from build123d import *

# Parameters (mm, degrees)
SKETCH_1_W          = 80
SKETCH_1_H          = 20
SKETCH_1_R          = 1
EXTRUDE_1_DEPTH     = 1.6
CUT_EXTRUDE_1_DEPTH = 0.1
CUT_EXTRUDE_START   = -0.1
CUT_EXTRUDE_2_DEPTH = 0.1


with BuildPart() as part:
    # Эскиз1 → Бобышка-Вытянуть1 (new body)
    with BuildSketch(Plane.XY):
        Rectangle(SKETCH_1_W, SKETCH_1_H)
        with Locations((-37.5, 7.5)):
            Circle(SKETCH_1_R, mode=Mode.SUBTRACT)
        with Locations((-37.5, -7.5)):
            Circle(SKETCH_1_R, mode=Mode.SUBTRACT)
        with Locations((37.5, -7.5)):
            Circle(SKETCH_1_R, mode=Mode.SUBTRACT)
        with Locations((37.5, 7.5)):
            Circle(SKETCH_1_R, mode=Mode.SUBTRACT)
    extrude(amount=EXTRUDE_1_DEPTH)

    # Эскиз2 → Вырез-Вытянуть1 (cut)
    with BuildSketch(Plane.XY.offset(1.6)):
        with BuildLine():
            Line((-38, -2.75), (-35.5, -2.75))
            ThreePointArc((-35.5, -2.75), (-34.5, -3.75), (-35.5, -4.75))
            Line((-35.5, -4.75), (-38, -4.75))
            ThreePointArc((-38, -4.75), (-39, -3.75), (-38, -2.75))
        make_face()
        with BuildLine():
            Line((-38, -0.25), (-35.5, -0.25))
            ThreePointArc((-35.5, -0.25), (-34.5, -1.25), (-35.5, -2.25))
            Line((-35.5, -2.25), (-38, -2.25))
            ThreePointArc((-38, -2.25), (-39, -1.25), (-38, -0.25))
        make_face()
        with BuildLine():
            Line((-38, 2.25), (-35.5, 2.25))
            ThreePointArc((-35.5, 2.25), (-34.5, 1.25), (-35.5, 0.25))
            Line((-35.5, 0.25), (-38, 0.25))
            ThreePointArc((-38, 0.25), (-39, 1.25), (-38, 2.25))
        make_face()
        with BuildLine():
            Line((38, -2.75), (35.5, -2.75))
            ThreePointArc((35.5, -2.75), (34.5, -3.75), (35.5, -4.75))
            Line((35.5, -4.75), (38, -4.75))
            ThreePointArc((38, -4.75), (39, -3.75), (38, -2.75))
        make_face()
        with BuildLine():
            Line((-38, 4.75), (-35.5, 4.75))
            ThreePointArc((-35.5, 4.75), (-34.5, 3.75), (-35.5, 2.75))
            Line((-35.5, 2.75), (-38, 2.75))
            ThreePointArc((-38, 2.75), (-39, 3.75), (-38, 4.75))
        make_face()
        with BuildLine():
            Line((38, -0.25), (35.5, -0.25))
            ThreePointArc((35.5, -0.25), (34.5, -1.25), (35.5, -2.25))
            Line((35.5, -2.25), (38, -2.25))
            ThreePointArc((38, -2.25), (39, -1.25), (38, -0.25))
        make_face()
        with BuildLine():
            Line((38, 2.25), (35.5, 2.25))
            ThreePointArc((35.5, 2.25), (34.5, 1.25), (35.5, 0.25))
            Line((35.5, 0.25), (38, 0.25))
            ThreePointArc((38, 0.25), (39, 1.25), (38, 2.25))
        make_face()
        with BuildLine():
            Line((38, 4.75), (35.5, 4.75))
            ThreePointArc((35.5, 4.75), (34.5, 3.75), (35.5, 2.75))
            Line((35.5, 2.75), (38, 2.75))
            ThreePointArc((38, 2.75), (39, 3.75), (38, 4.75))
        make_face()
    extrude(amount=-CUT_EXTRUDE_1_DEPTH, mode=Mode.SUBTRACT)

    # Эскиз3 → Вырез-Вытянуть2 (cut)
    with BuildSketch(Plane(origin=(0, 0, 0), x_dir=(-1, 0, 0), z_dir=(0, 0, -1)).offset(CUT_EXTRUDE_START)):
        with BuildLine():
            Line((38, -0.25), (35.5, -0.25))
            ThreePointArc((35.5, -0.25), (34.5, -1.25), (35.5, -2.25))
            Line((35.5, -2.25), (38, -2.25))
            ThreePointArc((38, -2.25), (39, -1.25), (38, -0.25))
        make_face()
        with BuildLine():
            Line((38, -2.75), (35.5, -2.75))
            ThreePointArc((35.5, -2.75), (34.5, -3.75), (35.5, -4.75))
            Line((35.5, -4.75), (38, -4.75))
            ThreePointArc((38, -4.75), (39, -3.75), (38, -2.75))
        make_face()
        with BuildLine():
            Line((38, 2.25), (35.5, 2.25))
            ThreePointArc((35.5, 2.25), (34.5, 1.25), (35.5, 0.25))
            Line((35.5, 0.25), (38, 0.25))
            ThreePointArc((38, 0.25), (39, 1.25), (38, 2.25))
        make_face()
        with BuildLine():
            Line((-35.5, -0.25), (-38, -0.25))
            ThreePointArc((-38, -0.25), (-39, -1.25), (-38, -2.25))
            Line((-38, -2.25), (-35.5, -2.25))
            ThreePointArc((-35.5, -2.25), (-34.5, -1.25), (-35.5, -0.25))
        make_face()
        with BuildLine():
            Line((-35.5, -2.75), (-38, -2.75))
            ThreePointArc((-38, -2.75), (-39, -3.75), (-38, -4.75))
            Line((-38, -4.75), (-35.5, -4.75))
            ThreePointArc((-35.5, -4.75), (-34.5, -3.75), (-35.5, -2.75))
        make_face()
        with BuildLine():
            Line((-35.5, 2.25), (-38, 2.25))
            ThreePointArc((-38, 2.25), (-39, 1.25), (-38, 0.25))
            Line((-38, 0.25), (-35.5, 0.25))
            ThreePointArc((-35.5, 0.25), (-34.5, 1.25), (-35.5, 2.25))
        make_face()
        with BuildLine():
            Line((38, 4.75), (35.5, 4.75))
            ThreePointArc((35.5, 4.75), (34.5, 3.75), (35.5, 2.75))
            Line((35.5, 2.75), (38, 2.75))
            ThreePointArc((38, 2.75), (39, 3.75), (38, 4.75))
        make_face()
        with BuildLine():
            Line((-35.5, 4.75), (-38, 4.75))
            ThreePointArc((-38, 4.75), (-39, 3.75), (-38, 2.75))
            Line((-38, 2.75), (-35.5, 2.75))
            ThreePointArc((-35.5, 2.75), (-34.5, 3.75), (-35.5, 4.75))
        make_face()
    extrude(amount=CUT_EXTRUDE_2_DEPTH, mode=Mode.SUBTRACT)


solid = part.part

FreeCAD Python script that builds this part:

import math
import FreeCAD as App
import Part
import Sketcher

doc = App.newDocument("Part")
params = doc.addObject("Spreadsheet::Sheet", "Params")
for row, (alias, value) in enumerate([
    ("sketch1_diameter", "2 mm"),
    ("sketch1_width", "80 mm"),
    ("sketch1_height", "20 mm"),
    ("pad1_length", "1.6 mm"),
    ("sketch2_radius", "1 mm"),
    ("sketch2_width", "2.5 mm"),
    ("pocket1_length", "0.1 mm"),
    ("sketch3_radius", "1 mm"),
    ("sketch3_width", "2.5 mm"),
    ("pocket2_length", "0.1 mm"),
], start=1):
    params.set(f"A{row}", alias)
    params.set(f"B{row}", "=" + value)
    params.setAlias(f"B{row}", alias)

body = doc.addObject("PartDesign::Body", "Body")

# Sketch on XY plane
sketch1 = body.newObject("Sketcher::SketchObject", "Sketch")
sketch1.AttachmentSupport = (doc.getObject("XY_Plane"), [""])
sketch1.MapMode = "FlatFace"
sketch1.addGeometry([
    Part.LineSegment(App.Vector(-40, 10, 0), App.Vector(-40, -10, 0)),  # 0
    Part.LineSegment(App.Vector(-40, -10, 0), App.Vector(40, -10, 0)),  # 1
    Part.LineSegment(App.Vector(40, -10, 0), App.Vector(40, 10, 0)),  # 2
    Part.LineSegment(App.Vector(40, 10, 0), App.Vector(-40, 10, 0)),  # 3
    Part.Circle(App.Vector(-37.5, -7.5, 0), App.Vector(0, 0, 1), 1),  # 4
    Part.Circle(App.Vector(37.5, -7.5, 0), App.Vector(0, 0, 1), 1),  # 5
    Part.Circle(App.Vector(-37.5, 7.5, 0), App.Vector(0, 0, 1), 1),  # 6
    Part.Circle(App.Vector(37.5, 7.5, 0), App.Vector(0, 0, 1), 1),  # 7
], False)
sketch1.addConstraint([
    Sketcher.Constraint("Coincident", 0, 2, 1, 1),
    Sketcher.Constraint("Coincident", 1, 2, 2, 1),
    Sketcher.Constraint("Coincident", 2, 2, 3, 1),
    Sketcher.Constraint("Coincident", 3, 2, 0, 1),
    Sketcher.Constraint("Vertical", 0),
    Sketcher.Constraint("Horizontal", 1),
    Sketcher.Constraint("Vertical", 2),
    Sketcher.Constraint("Horizontal", 3),
    Sketcher.Constraint("Equal", 4, 5),
    Sketcher.Constraint("Equal", 5, 6),
    Sketcher.Constraint("Equal", 6, 7),
    Sketcher.Constraint("Symmetric", 5, 3, 6, 3, -1, 1),
    Sketcher.Constraint("Symmetric", 4, 3, 7, 3, -1, 1),
    Sketcher.Constraint("Symmetric", 0, 2, 2, 2, -1, 1),
    Sketcher.Constraint("Symmetric", 4, 3, 5, 3, -2),
    Sketcher.Constraint("Diameter", 4, 2.0),
    Sketcher.Constraint("DistanceX", 1, 1, 1, 2, 80.0),
    Sketcher.Constraint("DistanceY", 0, 2, 0, 1, 20.0),
    Sketcher.Constraint("DistanceX", 4, 3, 5, 3, 75.0),
    Sketcher.Constraint("DistanceY", 4, 3, 6, 3, 15.0),
])
sketch1.setExpression("Constraints[15]", "Params.sketch1_diameter")
sketch1.setExpression("Constraints[16]", "Params.sketch1_width")
sketch1.setExpression("Constraints[17]", "Params.sketch1_height")
pad1 = body.newObject("PartDesign::Pad", "Pad")
pad1.Profile = sketch1
pad1.setExpression("Length", "Params.pad1_length")

# Sketch on XY plane
sketch2 = body.newObject("Sketcher::SketchObject", "Sketch001")
sketch2.AttachmentSupport = (doc.getObject("XY_Plane"), [""])
sketch2.MapMode = "FlatFace"
sketch2.AttachmentOffset = App.Placement(App.Vector(0, 0, 1.6), App.Rotation())
sketch2.addGeometry([
    Part.LineSegment(App.Vector(-35.5, -2.8, 0), App.Vector(-38, -2.8, 0)),  # 0
    Part.ArcOfCircle(Part.Circle(App.Vector(-38, -3.8, 0), App.Vector(0, 0, 1), 1), math.radians(90), math.radians(270)),  # 1
    Part.LineSegment(App.Vector(-38, -4.8, 0), App.Vector(-35.5, -4.8, 0)),  # 2
    Part.ArcOfCircle(Part.Circle(App.Vector(-35.5, -3.8, 0), App.Vector(0, 0, 1), 1), math.radians(-90), math.radians(90)),  # 3
    Part.LineSegment(App.Vector(-35.5, -0.2, 0), App.Vector(-38, -0.2, 0)),  # 4
    Part.ArcOfCircle(Part.Circle(App.Vector(-38, -1.2, 0), App.Vector(0, 0, 1), 1), math.radians(90), math.radians(270)),  # 5
    Part.LineSegment(App.Vector(-38, -2.2, 0), App.Vector(-35.5, -2.2, 0)),  # 6
    Part.ArcOfCircle(Part.Circle(App.Vector(-35.5, -1.2, 0), App.Vector(0, 0, 1), 1), math.radians(-90), math.radians(90)),  # 7
    Part.LineSegment(App.Vector(-35.5, 2.2, 0), App.Vector(-38, 2.2, 0)),  # 8
    Part.ArcOfCircle(Part.Circle(App.Vector(-38, 1.2, 0), App.Vector(0, 0, 1), 1), math.radians(90), math.radians(270)),  # 9
    Part.LineSegment(App.Vector(-38, 0.2, 0), App.Vector(-35.5, 0.2, 0)),  # 10
    Part.ArcOfCircle(Part.Circle(App.Vector(-35.5, 1.2, 0), App.Vector(0, 0, 1), 1), math.radians(-90), math.radians(90)),  # 11
    Part.LineSegment(App.Vector(38, -2.8, 0), App.Vector(35.5, -2.8, 0)),  # 12
    Part.ArcOfCircle(Part.Circle(App.Vector(35.5, -3.8, 0), App.Vector(0, 0, 1), 1), math.radians(90), math.radians(270)),  # 13
    Part.LineSegment(App.Vector(35.5, -4.8, 0), App.Vector(38, -4.8, 0)),  # 14
    Part.ArcOfCircle(Part.Circle(App.Vector(38, -3.8, 0), App.Vector(0, 0, 1), 1), math.radians(-90), math.radians(90)),  # 15
    Part.LineSegment(App.Vector(-35.5, 4.8, 0), App.Vector(-38, 4.8, 0)),  # 16
    Part.ArcOfCircle(Part.Circle(App.Vector(-38, 3.8, 0), App.Vector(0, 0, 1), 1), math.radians(90), math.radians(270)),  # 17
    Part.LineSegment(App.Vector(-38, 2.8, 0), App.Vector(-35.5, 2.8, 0)),  # 18
    Part.ArcOfCircle(Part.Circle(App.Vector(-35.5, 3.8, 0), App.Vector(0, 0, 1), 1), math.radians(-90), math.radians(90)),  # 19
    Part.LineSegment(App.Vector(38, -0.2, 0), App.Vector(35.5, -0.2, 0)),  # 20
    Part.ArcOfCircle(Part.Circle(App.Vector(35.5, -1.2, 0), App.Vector(0, 0, 1), 1), math.radians(90), math.radians(270)),  # 21
    Part.LineSegment(App.Vector(35.5, -2.2, 0), App.Vector(38, -2.2, 0)),  # 22
    Part.ArcOfCircle(Part.Circle(App.Vector(38, -1.2, 0), App.Vector(0, 0, 1), 1), math.radians(-90), math.radians(90)),  # 23
    Part.LineSegment(App.Vector(38, 2.2, 0), App.Vector(35.5, 2.2, 0)),  # 24
    Part.ArcOfCircle(Part.Circle(App.Vector(35.5, 1.2, 0), App.Vector(0, 0, 1), 1), math.radians(90), math.radians(270)),  # 25
    Part.LineSegment(App.Vector(35.5, 0.2, 0), App.Vector(38, 0.2, 0)),  # 26
    Part.ArcOfCircle(Part.Circle(App.Vector(38, 1.2, 0), App.Vector(0, 0, 1), 1), math.radians(-90), math.radians(90)),  # 27
    Part.LineSegment(App.Vector(38, 4.8, 0), App.Vector(35.5, 4.8, 0)),  # 28
    Part.ArcOfCircle(Part.Circle(App.Vector(35.5, 3.8, 0), App.Vector(0, 0, 1), 1), math.radians(90), math.radians(270)),  # 29
    Part.LineSegment(App.Vector(35.5, 2.8, 0), App.Vector(38, 2.8, 0)),  # 30
    Part.ArcOfCircle(Part.Circle(App.Vector(38, 3.8, 0), App.Vector(0, 0, 1), 1), math.radians(-90), math.radians(90)),  # 31
], False)
sketch2.addConstraint([
    Sketcher.Constraint("Tangent", 0, 2, 1, 1),
    Sketcher.Constraint("Tangent", 1, 2, 2, 1),
    Sketcher.Constraint("Tangent", 2, 2, 3, 1),
    Sketcher.Constraint("Tangent", 3, 2, 0, 1),
    Sketcher.Constraint("Tangent", 4, 2, 5, 1),
    Sketcher.Constraint("Tangent", 5, 2, 6, 1),
    Sketcher.Constraint("Tangent", 6, 2, 7, 1),
    Sketcher.Constraint("Tangent", 7, 2, 4, 1),
    Sketcher.Constraint("Tangent", 8, 2, 9, 1),
    Sketcher.Constraint("Tangent", 9, 2, 10, 1),
    Sketcher.Constraint("Tangent", 10, 2, 11, 1),
    Sketcher.Constraint("Tangent", 11, 2, 8, 1),
    Sketcher.Constraint("Tangent", 12, 2, 13, 1),
    Sketcher.Constraint("Tangent", 13, 2, 14, 1),
    Sketcher.Constraint("Tangent", 14, 2, 15, 1),
    Sketcher.Constraint("Tangent", 15, 2, 12, 1),
    Sketcher.Constraint("Tangent", 16, 2, 17, 1),
    Sketcher.Constraint("Tangent", 17, 2, 18, 1),
    Sketcher.Constraint("Tangent", 18, 2, 19, 1),
    Sketcher.Constraint("Tangent", 19, 2, 16, 1),
    Sketcher.Constraint("Tangent", 20, 2, 21, 1),
    Sketcher.Constraint("Tangent", 21, 2, 22, 1),
    Sketcher.Constraint("Tangent", 22, 2, 23, 1),
    Sketcher.Constraint("Tangent", 23, 2, 20, 1),
    Sketcher.Constraint("Tangent", 24, 2, 25, 1),
    Sketcher.Constraint("Tangent", 25, 2, 26, 1),
    Sketcher.Constraint("Tangent", 26, 2, 27, 1),
    Sketcher.Constraint("Tangent", 27, 2, 24, 1),
    Sketcher.Constraint("Tangent", 28, 2, 29, 1),
    Sketcher.Constraint("Tangent", 29, 2, 30, 1),
    Sketcher.Constraint("Tangent", 30, 2, 31, 1),
    Sketcher.Constraint("Tangent", 31, 2, 28, 1),
    Sketcher.Constraint("Horizontal", 0),
    Sketcher.Constraint("Horizontal", 2),
    Sketcher.Constraint("Horizontal", 4),
    Sketcher.Constraint("Horizontal", 6),
    Sketcher.Constraint("Horizontal", 8),
    Sketcher.Constraint("Horizontal", 10),
    Sketcher.Constraint("Horizontal", 12),
    Sketcher.Constraint("Horizontal", 14),
    Sketcher.Constraint("Horizontal", 16),
    Sketcher.Constraint("Horizontal", 18),
    Sketcher.Constraint("Horizontal", 20),
    Sketcher.Constraint("Horizontal", 22),
    Sketcher.Constraint("Horizontal", 24),
    Sketcher.Constraint("Horizontal", 26),
    Sketcher.Constraint("Horizontal", 28),
    Sketcher.Constraint("Horizontal", 30),
    Sketcher.Constraint("Equal", 3, 5),
    Sketcher.Constraint("Equal", 7, 9),
    Sketcher.Constraint("Equal", 11, 13),
    Sketcher.Constraint("Equal", 15, 17),
    Sketcher.Constraint("Equal", 19, 21),
    Sketcher.Constraint("Equal", 23, 25),
    Sketcher.Constraint("Equal", 27, 29),
    Sketcher.Constraint("Symmetric", 15, 3, 17, 3, -1, 1),
    Sketcher.Constraint("Symmetric", 11, 3, 21, 3, -1, 1),
    Sketcher.Constraint("Symmetric", 7, 3, 25, 3, -1, 1),
    Sketcher.Constraint("Symmetric", 3, 3, 29, 3, -1, 1),
    Sketcher.Constraint("Symmetric", 3, 3, 13, 3, -2),
    Sketcher.Constraint("Symmetric", 7, 3, 21, 3, -2),
    Sketcher.Constraint("Vertical", 1, 3, 5, 3),
    Sketcher.Constraint("Vertical", 3, 3, 7, 3),
    Sketcher.Constraint("Vertical", 5, 3, 9, 3),
    Sketcher.Constraint("Vertical", 9, 3, 17, 3),
    Sketcher.Constraint("Vertical", 11, 3, 19, 3),
    Sketcher.Constraint("Vertical", 15, 3, 23, 3),
    Sketcher.Constraint("Vertical", 23, 3, 27, 3),
    Sketcher.Constraint("Vertical", 27, 3, 31, 3),
    Sketcher.Constraint("Radius", 1, 1.0),
    Sketcher.Constraint("DistanceX", 0, 2, 0, 1, 2.5),
    Sketcher.Constraint("DistanceX", 1, 3, -1, 1, 38.0),
    Sketcher.Constraint("DistanceY", 1, 3, 9, 3, 5.0),
    Sketcher.Constraint("DistanceY", 1, 3, 5, 3, 2.5),
])
sketch2.setExpression("Constraints[69]", "Params.sketch2_radius")
sketch2.setExpression("Constraints[70]", "Params.sketch2_width")
pocket1 = body.newObject("PartDesign::Pocket", "Pocket")
pocket1.Profile = sketch2
pocket1.setExpression("Length", "Params.pocket1_length")

# Sketch on XY plane
sketch3 = body.newObject("Sketcher::SketchObject", "Sketch002")
sketch3.AttachmentSupport = (doc.getObject("XY_Plane"), [""])
sketch3.MapMode = "FlatFace"
sketch3.AttachmentOffset = App.Placement(App.Vector(0, 0, 0.1), App.Rotation())
sketch3.addGeometry([
    Part.LineSegment(App.Vector(-38, -0.2, 0), App.Vector(-35.5, -0.2, 0)),  # 0
    Part.ArcOfCircle(Part.Circle(App.Vector(-35.5, -1.2, 0), App.Vector(0, 0, 1), 1), math.radians(-90), math.radians(90)),  # 1
    Part.LineSegment(App.Vector(-35.5, -2.2, 0), App.Vector(-38, -2.2, 0)),  # 2
    Part.ArcOfCircle(Part.Circle(App.Vector(-38, -1.2, 0), App.Vector(0, 0, 1), 1), math.radians(90), math.radians(270)),  # 3
    Part.LineSegment(App.Vector(-38, -2.8, 0), App.Vector(-35.5, -2.8, 0)),  # 4
    Part.ArcOfCircle(Part.Circle(App.Vector(-35.5, -3.8, 0), App.Vector(0, 0, 1), 1), math.radians(-90), math.radians(90)),  # 5
    Part.LineSegment(App.Vector(-35.5, -4.8, 0), App.Vector(-38, -4.8, 0)),  # 6
    Part.ArcOfCircle(Part.Circle(App.Vector(-38, -3.8, 0), App.Vector(0, 0, 1), 1), math.radians(90), math.radians(270)),  # 7
    Part.LineSegment(App.Vector(-38, 2.2, 0), App.Vector(-35.5, 2.2, 0)),  # 8
    Part.ArcOfCircle(Part.Circle(App.Vector(-35.5, 1.2, 0), App.Vector(0, 0, 1), 1), math.radians(-90), math.radians(90)),  # 9
    Part.LineSegment(App.Vector(-35.5, 0.2, 0), App.Vector(-38, 0.2, 0)),  # 10
    Part.ArcOfCircle(Part.Circle(App.Vector(-38, 1.2, 0), App.Vector(0, 0, 1), 1), math.radians(90), math.radians(270)),  # 11
    Part.LineSegment(App.Vector(35.5, -0.2, 0), App.Vector(38, -0.2, 0)),  # 12
    Part.ArcOfCircle(Part.Circle(App.Vector(38, -1.2, 0), App.Vector(0, 0, 1), 1), math.radians(-90), math.radians(90)),  # 13
    Part.LineSegment(App.Vector(38, -2.2, 0), App.Vector(35.5, -2.2, 0)),  # 14
    Part.ArcOfCircle(Part.Circle(App.Vector(35.5, -1.2, 0), App.Vector(0, 0, 1), 1), math.radians(90), math.radians(270)),  # 15
    Part.LineSegment(App.Vector(35.5, -2.8, 0), App.Vector(38, -2.8, 0)),  # 16
    Part.ArcOfCircle(Part.Circle(App.Vector(38, -3.8, 0), App.Vector(0, 0, 1), 1), math.radians(-90), math.radians(90)),  # 17
    Part.LineSegment(App.Vector(38, -4.8, 0), App.Vector(35.5, -4.8, 0)),  # 18
    Part.ArcOfCircle(Part.Circle(App.Vector(35.5, -3.8, 0), App.Vector(0, 0, 1), 1), math.radians(90), math.radians(270)),  # 19
    Part.LineSegment(App.Vector(35.5, 2.2, 0), App.Vector(38, 2.2, 0)),  # 20
    Part.ArcOfCircle(Part.Circle(App.Vector(38, 1.2, 0), App.Vector(0, 0, 1), 1), math.radians(-90), math.radians(90)),  # 21
    Part.LineSegment(App.Vector(38, 0.2, 0), App.Vector(35.5, 0.2, 0)),  # 22
    Part.ArcOfCircle(Part.Circle(App.Vector(35.5, 1.2, 0), App.Vector(0, 0, 1), 1), math.radians(90), math.radians(270)),  # 23
    Part.LineSegment(App.Vector(-38, 4.8, 0), App.Vector(-35.5, 4.8, 0)),  # 24
    Part.ArcOfCircle(Part.Circle(App.Vector(-35.5, 3.8, 0), App.Vector(0, 0, 1), 1), math.radians(-90), math.radians(90)),  # 25
    Part.LineSegment(App.Vector(-35.5, 2.8, 0), App.Vector(-38, 2.8, 0)),  # 26
    Part.ArcOfCircle(Part.Circle(App.Vector(-38, 3.8, 0), App.Vector(0, 0, 1), 1), math.radians(90), math.radians(270)),  # 27
    Part.LineSegment(App.Vector(35.5, 4.8, 0), App.Vector(38, 4.8, 0)),  # 28
    Part.ArcOfCircle(Part.Circle(App.Vector(38, 3.8, 0), App.Vector(0, 0, 1), 1), math.radians(-90), math.radians(90)),  # 29
    Part.LineSegment(App.Vector(38, 2.8, 0), App.Vector(35.5, 2.8, 0)),  # 30
    Part.ArcOfCircle(Part.Circle(App.Vector(35.5, 3.8, 0), App.Vector(0, 0, 1), 1), math.radians(90), math.radians(270)),  # 31
], False)
sketch3.addConstraint([
    Sketcher.Constraint("Tangent", 0, 2, 1, 2),
    Sketcher.Constraint("Tangent", 1, 1, 2, 1),
    Sketcher.Constraint("Tangent", 2, 2, 3, 2),
    Sketcher.Constraint("Tangent", 3, 1, 0, 1),
    Sketcher.Constraint("Tangent", 4, 2, 5, 2),
    Sketcher.Constraint("Tangent", 5, 1, 6, 1),
    Sketcher.Constraint("Tangent", 6, 2, 7, 2),
    Sketcher.Constraint("Tangent", 7, 1, 4, 1),
    Sketcher.Constraint("Tangent", 8, 2, 9, 2),
    Sketcher.Constraint("Tangent", 9, 1, 10, 1),
    Sketcher.Constraint("Tangent", 10, 2, 11, 2),
    Sketcher.Constraint("Tangent", 11, 1, 8, 1),
    Sketcher.Constraint("Tangent", 12, 2, 13, 2),
    Sketcher.Constraint("Tangent", 13, 1, 14, 1),
    Sketcher.Constraint("Tangent", 14, 2, 15, 2),
    Sketcher.Constraint("Tangent", 15, 1, 12, 1),
    Sketcher.Constraint("Tangent", 16, 2, 17, 2),
    Sketcher.Constraint("Tangent", 17, 1, 18, 1),
    Sketcher.Constraint("Tangent", 18, 2, 19, 2),
    Sketcher.Constraint("Tangent", 19, 1, 16, 1),
    Sketcher.Constraint("Tangent", 20, 2, 21, 2),
    Sketcher.Constraint("Tangent", 21, 1, 22, 1),
    Sketcher.Constraint("Tangent", 22, 2, 23, 2),
    Sketcher.Constraint("Tangent", 23, 1, 20, 1),
    Sketcher.Constraint("Tangent", 24, 2, 25, 2),
    Sketcher.Constraint("Tangent", 25, 1, 26, 1),
    Sketcher.Constraint("Tangent", 26, 2, 27, 2),
    Sketcher.Constraint("Tangent", 27, 1, 24, 1),
    Sketcher.Constraint("Tangent", 28, 2, 29, 2),
    Sketcher.Constraint("Tangent", 29, 1, 30, 1),
    Sketcher.Constraint("Tangent", 30, 2, 31, 2),
    Sketcher.Constraint("Tangent", 31, 1, 28, 1),
    Sketcher.Constraint("Horizontal", 0),
    Sketcher.Constraint("Horizontal", 2),
    Sketcher.Constraint("Horizontal", 4),
    Sketcher.Constraint("Horizontal", 6),
    Sketcher.Constraint("Horizontal", 8),
    Sketcher.Constraint("Horizontal", 10),
    Sketcher.Constraint("Horizontal", 12),
    Sketcher.Constraint("Horizontal", 14),
    Sketcher.Constraint("Horizontal", 16),
    Sketcher.Constraint("Horizontal", 18),
    Sketcher.Constraint("Horizontal", 20),
    Sketcher.Constraint("Horizontal", 22),
    Sketcher.Constraint("Horizontal", 24),
    Sketcher.Constraint("Horizontal", 26),
    Sketcher.Constraint("Horizontal", 28),
    Sketcher.Constraint("Horizontal", 30),
    Sketcher.Constraint("Equal", 3, 5),
    Sketcher.Constraint("Equal", 7, 9),
    Sketcher.Constraint("Equal", 11, 13),
    Sketcher.Constraint("Equal", 15, 17),
    Sketcher.Constraint("Equal", 19, 21),
    Sketcher.Constraint("Equal", 23, 25),
    Sketcher.Constraint("Equal", 27, 29),
    Sketcher.Constraint("Symmetric", 11, 3, 13, 3, -1, 1),
    Sketcher.Constraint("Symmetric", 3, 3, 21, 3, -1, 1),
    Sketcher.Constraint("Symmetric", 19, 3, 25, 3, -1, 1),
    Sketcher.Constraint("Symmetric", 7, 3, 29, 3, -1, 1),
    Sketcher.Constraint("Symmetric", 3, 3, 13, 3, -2),
    Sketcher.Constraint("Symmetric", 7, 3, 17, 3, -2),
    Sketcher.Constraint("Vertical", 1, 3, 5, 3),
    Sketcher.Constraint("Vertical", 3, 3, 7, 3),
    Sketcher.Constraint("Vertical", 5, 3, 9, 3),
    Sketcher.Constraint("Vertical", 15, 3, 19, 3),
    Sketcher.Constraint("Vertical", 19, 3, 23, 3),
    Sketcher.Constraint("Vertical", 9, 3, 25, 3),
    Sketcher.Constraint("Vertical", 11, 3, 27, 3),
    Sketcher.Constraint("Vertical", 23, 3, 31, 3),
    Sketcher.Constraint("Radius", 1, 1.0),
    Sketcher.Constraint("DistanceX", 0, 1, 0, 2, 2.5),
    Sketcher.Constraint("DistanceX", 3, 3, -1, 1, 38.0),
    Sketcher.Constraint("DistanceY", 5, 3, 9, 3, 5.0),
    Sketcher.Constraint("DistanceY", 5, 3, 1, 3, 2.5),
])
sketch3.setExpression("Constraints[69]", "Params.sketch3_radius")
sketch3.setExpression("Constraints[70]", "Params.sketch3_width")
pocket2 = body.newObject("PartDesign::Pocket", "Pocket001")
pocket2.Profile = sketch3
pocket2.setExpression("Length", "Params.pocket2_length")

doc.recompute()
